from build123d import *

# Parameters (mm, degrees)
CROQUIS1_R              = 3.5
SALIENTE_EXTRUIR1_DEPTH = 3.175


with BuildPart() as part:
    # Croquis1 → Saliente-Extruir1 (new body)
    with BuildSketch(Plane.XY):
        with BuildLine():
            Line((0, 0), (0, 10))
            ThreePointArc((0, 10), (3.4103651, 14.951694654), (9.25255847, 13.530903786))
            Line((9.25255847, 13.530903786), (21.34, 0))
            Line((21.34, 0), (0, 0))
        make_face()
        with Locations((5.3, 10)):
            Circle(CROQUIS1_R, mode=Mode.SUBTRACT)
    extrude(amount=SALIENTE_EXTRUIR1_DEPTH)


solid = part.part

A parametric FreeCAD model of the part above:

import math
import FreeCAD as App
import Part
import Sketcher

V = App.Vector

doc = App.newDocument("Part")
body = doc.addObject("PartDesign::Body", "Body")

# Sketch on XY plane
sketch1 = body.newObject("Sketcher::SketchObject", "Sketch")
sketch1.AttachmentSupport = (doc.getObject("XY_Plane"), [""])
sketch1.MapMode = "FlatFace"
sketch1.addGeometry(Part.LineSegment(V(0, 10, 0), V(0, 0, 0)), False)
sketch1.addGeometry(Part.LineSegment(V(0, 0, 0), V(21.3, 0, 0)), False)
sketch1.addGeometry(Part.LineSegment(V(21.3, 0, 0), V(9.3, 13.5, 0)), False)
sketch1.addGeometry(Part.ArcOfCircle(Part.Circle(V(5.3, 10, 0), V(0, 0, 1), 5.3), math.radians(42), math.radians(180)), False)
sketch1.addGeometry(Part.Circle(V(5.3, 10, 0), V(0, 0, 1), 3.5), False)
sketch1.addConstraint(Sketcher.Constraint("Coincident", 0, 2, 1, 1))
sketch1.addConstraint(Sketcher.Constraint("Coincident", 1, 2, 2, 1))
sketch1.addConstraint(Sketcher.Constraint("Tangent", 2, 2, 3, 1))
sketch1.addConstraint(Sketcher.Constraint("Tangent", 3, 2, 0, 1))
sketch1.addConstraint(Sketcher.Constraint("Vertical", 0))
sketch1.addConstraint(Sketcher.Constraint("Horizontal", 1))
sketch1.addConstraint(Sketcher.Constraint("Coincident", 0, 2, -1, 1))
sketch1.addConstraint(Sketcher.Constraint("Coincident", 4, 3, 3, 3))
sketch1.addConstraint(Sketcher.Constraint("Diameter", 4, 7.0))
sketch1.addConstraint(Sketcher.Constraint("Radius", 3, 5.3))
sketch1.addConstraint(Sketcher.Constraint("DistanceY", 0, 2, 0, 1, 10.0))
sketch1.addConstraint(Sketcher.Constraint("DistanceX", 1, 1, 1, 2, 21.34))
pad1 = body.newObject("PartDesign::Pad", "Pad")
pad1.Profile = sketch1
pad1.Length = 3.175

doc.recompute()
